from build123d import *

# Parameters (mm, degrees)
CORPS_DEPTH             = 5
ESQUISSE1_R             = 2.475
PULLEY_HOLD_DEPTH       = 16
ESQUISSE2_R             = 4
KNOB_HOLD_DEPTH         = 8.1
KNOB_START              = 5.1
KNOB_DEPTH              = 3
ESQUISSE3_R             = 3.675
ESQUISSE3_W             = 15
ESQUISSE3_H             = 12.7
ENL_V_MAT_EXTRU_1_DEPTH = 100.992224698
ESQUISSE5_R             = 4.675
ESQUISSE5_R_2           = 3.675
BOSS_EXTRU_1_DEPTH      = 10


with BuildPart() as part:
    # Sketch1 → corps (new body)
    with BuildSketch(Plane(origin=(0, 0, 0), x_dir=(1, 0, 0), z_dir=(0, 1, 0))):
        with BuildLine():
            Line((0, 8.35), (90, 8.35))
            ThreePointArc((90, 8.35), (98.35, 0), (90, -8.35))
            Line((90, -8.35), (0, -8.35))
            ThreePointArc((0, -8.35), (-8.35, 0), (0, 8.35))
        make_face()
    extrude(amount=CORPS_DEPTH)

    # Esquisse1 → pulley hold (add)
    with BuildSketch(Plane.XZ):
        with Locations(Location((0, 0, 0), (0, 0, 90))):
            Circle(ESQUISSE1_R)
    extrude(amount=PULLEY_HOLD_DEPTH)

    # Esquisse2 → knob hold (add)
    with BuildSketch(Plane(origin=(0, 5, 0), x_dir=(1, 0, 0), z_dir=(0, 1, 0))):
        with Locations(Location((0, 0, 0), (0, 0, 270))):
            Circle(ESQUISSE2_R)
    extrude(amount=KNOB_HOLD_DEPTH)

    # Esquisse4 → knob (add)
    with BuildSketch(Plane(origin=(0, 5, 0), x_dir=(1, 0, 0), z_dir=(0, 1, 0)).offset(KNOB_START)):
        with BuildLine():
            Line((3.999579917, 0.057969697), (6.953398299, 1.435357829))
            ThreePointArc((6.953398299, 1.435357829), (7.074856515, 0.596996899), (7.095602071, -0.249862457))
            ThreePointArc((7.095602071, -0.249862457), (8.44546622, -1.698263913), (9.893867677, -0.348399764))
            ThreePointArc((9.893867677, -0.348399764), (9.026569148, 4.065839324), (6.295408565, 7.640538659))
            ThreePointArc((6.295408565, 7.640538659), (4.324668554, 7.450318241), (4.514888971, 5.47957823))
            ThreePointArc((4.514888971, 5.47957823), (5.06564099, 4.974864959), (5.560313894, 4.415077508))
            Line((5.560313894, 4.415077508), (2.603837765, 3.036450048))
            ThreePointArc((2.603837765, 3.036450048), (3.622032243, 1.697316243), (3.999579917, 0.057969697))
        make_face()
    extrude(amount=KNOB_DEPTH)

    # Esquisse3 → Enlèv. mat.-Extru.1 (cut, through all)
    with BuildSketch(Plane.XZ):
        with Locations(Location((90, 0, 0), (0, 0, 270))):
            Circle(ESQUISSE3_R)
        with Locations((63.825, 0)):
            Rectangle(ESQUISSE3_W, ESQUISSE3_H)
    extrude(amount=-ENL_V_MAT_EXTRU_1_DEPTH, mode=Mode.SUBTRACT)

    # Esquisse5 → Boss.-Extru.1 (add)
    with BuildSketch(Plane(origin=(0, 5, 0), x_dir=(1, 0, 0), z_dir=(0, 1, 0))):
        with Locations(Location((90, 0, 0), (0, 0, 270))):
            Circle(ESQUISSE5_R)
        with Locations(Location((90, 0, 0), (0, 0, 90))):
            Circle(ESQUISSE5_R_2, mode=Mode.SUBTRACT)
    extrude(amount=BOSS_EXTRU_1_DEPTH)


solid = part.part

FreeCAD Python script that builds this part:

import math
import FreeCAD as App
import Part
import Sketcher
Q = App.Units.Quantity


def add_polygon(sketch, points):
    """Adds a closed chain of lines whose ends are joined by coincident constraints."""
    first, n = sketch.GeometryCount, len(points)
    for a, b in zip(points, points[1:] + points[:1]):
        sketch.addGeometry(Part.LineSegment(App.Vector(*a, 0), App.Vector(*b, 0)), False)
    for i in range(n):
        sketch.addConstraint(Sketcher.Constraint("Coincident", first + i, 2, first + (i + 1) % n, 1))

doc = App.newDocument("Part")
body = doc.addObject("PartDesign::Body", "Body")

# Sketch on XZ plane
sketch1 = body.newObject("Sketcher::SketchObject", "Sketch")
sketch1.AttachmentSupport = (doc.getObject("XZ_Plane"), [""])
sketch1.MapMode = "FlatFace"
sketch1.addGeometry(Part.LineSegment(App.Vector(90, -8.35, 0), App.Vector(0, -8.35, 0)), False)
sketch1.addGeometry(Part.ArcOfCircle(Part.Circle(App.Vector(0, 0, 0), App.Vector(0, 0, 1), 8.35), math.radians(90), math.radians(270)), False)
sketch1.addGeometry(Part.LineSegment(App.Vector(0, 8.35, 0), App.Vector(90, 8.35, 0)), False)
sketch1.addGeometry(Part.ArcOfCircle(Part.Circle(App.Vector(90, 0, 0), App.Vector(0, 0, 1), 8.35), math.radians(-90), math.radians(90)), False)
sketch1.addConstraint(Sketcher.Constraint("Tangent", 0, 2, 1, 2))
sketch1.addConstraint(Sketcher.Constraint("Tangent", 1, 1, 2, 1))
sketch1.addConstraint(Sketcher.Constraint("Tangent", 2, 2, 3, 2))
sketch1.addConstraint(Sketcher.Constraint("Tangent", 3, 1, 0, 1))
sketch1.addConstraint(Sketcher.Constraint("Horizontal", 0))
sketch1.addConstraint(Sketcher.Constraint("Horizontal", 2))
sketch1.addConstraint(Sketcher.Constraint("Coincident", 1, 3, -1, 1))
sketch1.addConstraint(Sketcher.Constraint("DistanceX", 0, 2, 0, 1, Q("90 mm")))
sketch1.addConstraint(Sketcher.Constraint("Radius", 1, Q("8.35 mm")))
pad1 = body.newObject("PartDesign::Pad", "Pad")
pad1.Profile = sketch1
pad1.Length = 5
pad1.Reversed = True

# Sketch on XZ plane
sketch2 = body.newObject("Sketcher::SketchObject", "Sketch001")
sketch2.AttachmentSupport = (doc.getObject("XZ_Plane"), [""])
sketch2.MapMode = "FlatFace"
sketch2.addGeometry(Part.Circle(App.Vector(0, 0, 0), App.Vector(0, 0, 1), 2.475), False)
sketch2.addConstraint(Sketcher.Constraint("Coincident", 0, 3, -1, 1))
sketch2.addConstraint(Sketcher.Constraint("Diameter", 0, Q("4.95 mm")))
pad2 = body.newObject("PartDesign::Pad", "Pad001")
pad2.Profile = sketch2
pad2.Length = 16

# Sketch on XZ plane
sketch3 = body.newObject("Sketcher::SketchObject", "Sketch002")
sketch3.AttachmentSupport = (doc.getObject("XZ_Plane"), [""])
sketch3.MapMode = "FlatFace"
sketch3.AttachmentOffset = App.Placement(App.Vector(0, 0, -5), App.Rotation())
sketch3.addGeometry(Part.Circle(App.Vector(0, 0, 0), App.Vector(0, 0, 1), 4), False)
sketch3.addConstraint(Sketcher.Constraint("Coincident", 0, 3, -1, 1))
sketch3.addConstraint(Sketcher.Constraint("Diameter", 0, Q("8 mm")))
pad3 = body.newObject("PartDesign::Pad", "Pad002")
pad3.Profile = sketch3
pad3.Length = 8.1
pad3.Reversed = True

# Sketch on XZ plane
sketch4 = body.newObject("Sketcher::SketchObject", "Sketch003")
sketch4.AttachmentSupport = (doc.getObject("XZ_Plane"), [""])
sketch4.MapMode = "FlatFace"
sketch4.AttachmentOffset = App.Placement(App.Vector(0, 0, -10.1), App.Rotation())
sketch4.addGeometry(Part.LineSegment(App.Vector(3.99958, -0.05797, 0), App.Vector(6.953398, -1.435358, 0)), False)
sketch4.addGeometry(Part.ArcOfCircle(Part.Circle(App.Vector(0, 0, 0), App.Vector(0, 0, 1), 7.1), math.radians(-11.663478), math.radians(2.016764)), False)
sketch4.addGeometry(Part.ArcOfCircle(Part.Circle(App.Vector(8.494735, 0.299131, 0), App.Vector(0, 0, 1), 1.4), math.radians(2.016764), math.radians(182.016763)), False)
sketch4.addGeometry(Part.ArcOfCircle(Part.Circle(App.Vector(0, 0, 0), App.Vector(0, 0, 1), 9.9), math.radians(-50.513243), math.radians(2.016763)), False)
sketch4.addGeometry(Part.ArcOfCircle(Part.Circle(App.Vector(5.405149, -6.560058, 0), App.Vector(0, 0, 1), 1.4), math.radians(129.486757), math.radians(309.486757)), False)
sketch4.addGeometry(Part.ArcOfCircle(Part.Circle(App.Vector(0, 0, 0), App.Vector(0, 0, 1), 7.1), math.radians(-50.513243), math.radians(-38.450765)), False)
sketch4.addGeometry(Part.LineSegment(App.Vector(5.560314, -4.415078, 0), App.Vector(2.603838, -3.03645, 0)), False)
sketch4.addGeometry(Part.ArcOfCircle(Part.Circle(App.Vector(0, 0, 0), App.Vector(0, 0, 1), 4), math.radians(-49.386021), math.radians(-0.830384)), False)
sketch4.addConstraint(Sketcher.Constraint("Coincident", 0, 2, 1, 1))
sketch4.addConstraint(Sketcher.Constraint("Tangent", 1, 2, 2, 2))
sketch4.addConstraint(Sketcher.Constraint("Tangent", 2, 1, 3, 2))
sketch4.addConstraint(Sketcher.Constraint("Tangent", 3, 1, 4, 2))
sketch4.addConstraint(Sketcher.Constraint("Tangent", 4, 1, 5, 1))
sketch4.addConstraint(Sketcher.Constraint("Coincident", 5, 2, 6, 1))
sketch4.addConstraint(Sketcher.Constraint("Coincident", 6, 2, 7, 1))
sketch4.addConstraint(Sketcher.Constraint("Coincident", 7, 2, 0, 1))
sketch4.addConstraint(Sketcher.Constraint("Coincident", 1, 3, -1, 1))
sketch4.addConstraint(Sketcher.Constraint("Coincident", 3, 3, -1, 1))
sketch4.addConstraint(Sketcher.Constraint("Coincident", 5, 3, -1, 1))
sketch4.addConstraint(Sketcher.Constraint("Coincident", 7, 3, -1, 1))
sketch4.addConstraint(Sketcher.Constraint("Equal", 2, 4))
sketch4.addConstraint(Sketcher.Constraint("Parallel", 0, 6))
sketch4.addConstraint(Sketcher.Constraint("Radius", 7, Q("4 mm")))
sketch4.addConstraint(Sketcher.Constraint("Radius", 1, Q("7.1 mm")))
sketch4.addConstraint(Sketcher.Constraint("Radius", 2, Q("1.4 mm")))
sketch4.addConstraint(Sketcher.Constraint("Angle", 0, Q("-25 deg")))
sketch4.addConstraint(Sketcher.Constraint("DistanceX", -1, 1, 0, 2, Q("6.953398 mm")))
sketch4.addConstraint(Sketcher.Constraint("DistanceY", -1, 1, 2, 1, Q("0.3484 mm")))
sketch4.addConstraint(Sketcher.Constraint("DistanceY", 4, 3, 0, 2, Q("5.124701 mm")))
sketch4.addConstraint(Sketcher.Constraint("DistanceY", 4, 1, 5, 2, Q("1.064501 mm")))
pad4 = body.newObject("PartDesign::Pad", "Pad003")
pad4.Profile = sketch4
pad4.Length = 3
pad4.Reversed = True

# Sketch on XZ plane
sketch5 = body.newObject("Sketcher::SketchObject", "Sketch004")
sketch5.AttachmentSupport = (doc.getObject("XZ_Plane"), [""])
sketch5.MapMode = "FlatFace"
sketch5.addGeometry(Part.Circle(App.Vector(90, 0, 0), App.Vector(0, 0, 1), 3.675), False)  # 0
add_polygon(sketch5, [(56.325, 6.35), (56.325, -6.35), (71.325, -6.35), (71.325, 6.35)])  # lines 1-4
sketch5.addConstraint(Sketcher.Constraint("Vertical", 1))
sketch5.addConstraint(Sketcher.Constraint("Horizontal", 2))
sketch5.addConstraint(Sketcher.Constraint("Vertical", 3))
sketch5.addConstraint(Sketcher.Constraint("Horizontal", 4))
sketch5.addConstraint(Sketcher.Constraint("PointOnObject", 0, 3, -1))
sketch5.addConstraint(Sketcher.Constraint("Diameter", 0, Q("7.35 mm")))
sketch5.addConstraint(Sketcher.Constraint("DistanceX", 2, 1, 2, 2, Q("15 mm")))
sketch5.addConstraint(Sketcher.Constraint("DistanceY", 1, 2, 1, 1, Q("12.7 mm")))
sketch5.addConstraint(Sketcher.Constraint("DistanceX", -1, 1, 0, 3, Q("90 mm")))
sketch5.addConstraint(Sketcher.Constraint("DistanceY", 1, 2, -1, 1, Q("6.35 mm")))
sketch5.addConstraint(Sketcher.Constraint("DistanceX", -1, 1, 1, 2, Q("56.325 mm")))
pocket1 = body.newObject("PartDesign::Pocket", "Pocket")
pocket1.Profile = sketch5
pocket1.Type = "ThroughAll"

# Sketch on XZ plane
sketch6 = body.newObject("Sketcher::SketchObject", "Sketch005")
sketch6.AttachmentSupport = (doc.getObject("XZ_Plane"), [""])
sketch6.MapMode = "FlatFace"
sketch6.AttachmentOffset = App.Placement(App.Vector(0, 0, -5), App.Rotation())
sketch6.addGeometry(Part.Circle(App.Vector(90, 0, 0), App.Vector(0, 0, 1), 4.675), False)
sketch6.addGeometry(Part.Circle(App.Vector(90, 0, 0), App.Vector(0, 0, 1), 3.675), False)
sketch6.addConstraint(Sketcher.Constraint("Coincident", 1, 3, 0, 3))
sketch6.addConstraint(Sketcher.Constraint("PointOnObject", 0, 3, -1))
sketch6.addConstraint(Sketcher.Constraint("Diameter", 0, Q("9.35 mm")))
sketch6.addConstraint(Sketcher.Constraint("Diameter", 1, Q("7.35 mm")))
sketch6.addConstraint(Sketcher.Constraint("DistanceX", -1, 1, 0, 3, Q("90 mm")))
pad5 = body.newObject("PartDesign::Pad", "Pad004")
pad5.Profile = sketch6
pad5.Length = 10
pad5.Reversed = True

doc.recompute()
